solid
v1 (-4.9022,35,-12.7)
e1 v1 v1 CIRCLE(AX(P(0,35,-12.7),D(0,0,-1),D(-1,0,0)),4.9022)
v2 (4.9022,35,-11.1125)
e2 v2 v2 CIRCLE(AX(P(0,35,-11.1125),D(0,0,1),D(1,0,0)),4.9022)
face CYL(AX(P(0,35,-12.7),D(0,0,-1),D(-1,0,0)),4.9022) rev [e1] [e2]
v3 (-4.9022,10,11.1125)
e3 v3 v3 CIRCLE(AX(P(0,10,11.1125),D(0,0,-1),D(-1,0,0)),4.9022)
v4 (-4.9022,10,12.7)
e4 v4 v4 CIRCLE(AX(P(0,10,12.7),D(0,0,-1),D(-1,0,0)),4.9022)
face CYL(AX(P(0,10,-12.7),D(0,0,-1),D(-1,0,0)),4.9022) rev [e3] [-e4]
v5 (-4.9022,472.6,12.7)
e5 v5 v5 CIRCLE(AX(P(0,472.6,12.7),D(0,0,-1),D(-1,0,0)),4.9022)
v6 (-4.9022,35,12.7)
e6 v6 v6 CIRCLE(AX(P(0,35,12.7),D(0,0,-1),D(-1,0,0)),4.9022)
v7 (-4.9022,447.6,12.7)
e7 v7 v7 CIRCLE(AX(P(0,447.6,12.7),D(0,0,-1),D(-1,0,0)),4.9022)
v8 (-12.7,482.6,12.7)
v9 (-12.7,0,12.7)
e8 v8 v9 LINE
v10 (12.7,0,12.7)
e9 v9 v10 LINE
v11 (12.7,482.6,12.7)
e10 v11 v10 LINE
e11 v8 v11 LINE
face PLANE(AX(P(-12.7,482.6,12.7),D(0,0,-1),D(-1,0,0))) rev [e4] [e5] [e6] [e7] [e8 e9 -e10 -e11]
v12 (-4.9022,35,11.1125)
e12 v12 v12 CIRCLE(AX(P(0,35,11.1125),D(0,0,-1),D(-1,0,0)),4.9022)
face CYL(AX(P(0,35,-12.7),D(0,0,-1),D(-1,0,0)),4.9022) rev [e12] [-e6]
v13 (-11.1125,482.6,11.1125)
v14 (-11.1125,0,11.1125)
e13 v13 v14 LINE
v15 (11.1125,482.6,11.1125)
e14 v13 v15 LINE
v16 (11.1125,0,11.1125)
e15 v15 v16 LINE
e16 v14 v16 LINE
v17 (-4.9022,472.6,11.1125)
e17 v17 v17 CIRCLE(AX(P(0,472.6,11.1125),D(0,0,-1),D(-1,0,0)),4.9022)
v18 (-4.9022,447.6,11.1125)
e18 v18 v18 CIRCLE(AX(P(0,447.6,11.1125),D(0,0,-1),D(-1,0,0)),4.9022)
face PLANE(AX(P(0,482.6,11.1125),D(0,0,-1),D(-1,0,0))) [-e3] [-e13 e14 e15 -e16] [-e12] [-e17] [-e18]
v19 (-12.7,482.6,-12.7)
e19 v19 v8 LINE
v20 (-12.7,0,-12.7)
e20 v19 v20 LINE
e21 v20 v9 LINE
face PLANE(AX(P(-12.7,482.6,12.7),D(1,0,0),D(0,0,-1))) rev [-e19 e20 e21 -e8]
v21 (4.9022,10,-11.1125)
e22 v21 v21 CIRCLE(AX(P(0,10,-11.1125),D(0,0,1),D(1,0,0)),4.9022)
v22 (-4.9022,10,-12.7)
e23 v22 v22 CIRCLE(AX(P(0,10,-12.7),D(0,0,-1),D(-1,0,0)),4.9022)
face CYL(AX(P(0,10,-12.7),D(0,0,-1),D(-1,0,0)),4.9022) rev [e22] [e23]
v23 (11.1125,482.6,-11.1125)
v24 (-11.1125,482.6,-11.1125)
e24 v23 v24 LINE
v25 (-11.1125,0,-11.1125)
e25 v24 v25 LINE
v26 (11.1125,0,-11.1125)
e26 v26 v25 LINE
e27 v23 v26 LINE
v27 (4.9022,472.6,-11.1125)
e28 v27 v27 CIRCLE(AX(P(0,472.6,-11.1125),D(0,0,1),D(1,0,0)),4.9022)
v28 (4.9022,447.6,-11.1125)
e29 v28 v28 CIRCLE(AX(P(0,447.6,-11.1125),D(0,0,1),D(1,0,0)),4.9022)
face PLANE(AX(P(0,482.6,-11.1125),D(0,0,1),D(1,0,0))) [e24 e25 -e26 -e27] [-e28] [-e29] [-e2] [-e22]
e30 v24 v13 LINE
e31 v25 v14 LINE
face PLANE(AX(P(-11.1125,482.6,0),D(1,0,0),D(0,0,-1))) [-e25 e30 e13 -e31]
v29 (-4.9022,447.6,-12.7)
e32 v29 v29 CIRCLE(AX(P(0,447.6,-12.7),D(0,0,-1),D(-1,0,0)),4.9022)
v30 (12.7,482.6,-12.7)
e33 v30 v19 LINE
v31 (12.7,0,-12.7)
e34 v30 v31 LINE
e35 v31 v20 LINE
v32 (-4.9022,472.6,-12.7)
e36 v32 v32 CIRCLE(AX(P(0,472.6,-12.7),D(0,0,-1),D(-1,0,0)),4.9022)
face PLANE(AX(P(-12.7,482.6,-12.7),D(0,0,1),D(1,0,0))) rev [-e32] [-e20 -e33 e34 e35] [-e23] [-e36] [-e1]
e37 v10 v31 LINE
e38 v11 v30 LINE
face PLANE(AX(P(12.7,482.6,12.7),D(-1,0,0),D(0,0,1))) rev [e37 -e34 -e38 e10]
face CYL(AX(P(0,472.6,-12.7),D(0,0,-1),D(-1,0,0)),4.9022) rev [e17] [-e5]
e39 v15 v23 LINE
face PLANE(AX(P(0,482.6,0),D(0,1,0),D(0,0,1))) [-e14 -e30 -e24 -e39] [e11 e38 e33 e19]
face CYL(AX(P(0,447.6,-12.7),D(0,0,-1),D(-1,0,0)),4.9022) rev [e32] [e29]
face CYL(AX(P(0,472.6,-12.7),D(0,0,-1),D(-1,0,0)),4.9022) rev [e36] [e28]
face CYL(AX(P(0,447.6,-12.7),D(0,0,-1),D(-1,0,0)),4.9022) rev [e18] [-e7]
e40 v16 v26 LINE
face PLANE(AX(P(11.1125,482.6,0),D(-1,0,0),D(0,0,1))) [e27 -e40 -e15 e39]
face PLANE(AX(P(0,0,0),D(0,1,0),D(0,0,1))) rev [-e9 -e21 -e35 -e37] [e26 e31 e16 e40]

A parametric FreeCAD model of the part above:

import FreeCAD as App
import Part
import Sketcher
Q = App.Units.Quantity


def add_polygon(sketch, points):
    """Adds a closed chain of lines whose ends are joined by coincident constraints."""
    first, n = sketch.GeometryCount, len(points)
    for a, b in zip(points, points[1:] + points[:1]):
        sketch.addGeometry(Part.LineSegment(App.Vector(*a, 0), App.Vector(*b, 0)), False)
    for i in range(n):
        sketch.addConstraint(Sketcher.Constraint("Coincident", first + i, 2, first + (i + 1) % n, 1))

doc = App.newDocument("Part")
body = doc.addObject("PartDesign::Body", "Body")

# Sketch on XZ plane
sketch1 = body.newObject("Sketcher::SketchObject", "Sketch")
sketch1.AttachmentSupport = (doc.getObject("XZ_Plane"), [""])
sketch1.MapMode = "FlatFace"
add_polygon(sketch1, [(-13, -13), (-13, 13), (13, 13), (13, -13)])  # lines 0-3
add_polygon(sketch1, [(11, 11), (-11, 11), (-11, -11), (11, -11)])  # lines 4-7
sketch1.addConstraint([
    Sketcher.Constraint("Vertical", 0),
    Sketcher.Constraint("Horizontal", 1),
    Sketcher.Constraint("Vertical", 2),
    Sketcher.Constraint("Horizontal", 3),
    Sketcher.Constraint("Horizontal", 4),
    Sketcher.Constraint("Vertical", 5),
    Sketcher.Constraint("Horizontal", 6),
    Sketcher.Constraint("Vertical", 7),
    Sketcher.Constraint("Symmetric", 0, 2, 2, 2, -1, 1),
    Sketcher.Constraint("Symmetric", 4, 2, 6, 2, -1, 1),
    Sketcher.Constraint("Equal", 3, 0),
    Sketcher.Constraint("Equal", 6, 5),
    Sketcher.Constraint("DistanceX", 1, 1, 1, 2, Q("1 in")),
    Sketcher.Constraint("DistanceX", 4, 2, 4, 1, Q("0.875 in")),
])
pad1 = body.newObject("PartDesign::Pad", "Pad")
pad1.Profile = sketch1
pad1.Length = Q("19 in")
pad1.Reversed = True

# Sketch on XY plane
sketch2 = body.newObject("Sketcher::SketchObject", "Sketch001")
sketch2.AttachmentSupport = (doc.getObject("XY_Plane"), [""])
sketch2.MapMode = "FlatFace"
sketch2.AttachmentOffset = App.Placement(App.Vector(0, 0, -0.5 * 25.4), App.Rotation())
sketch2.addGeometry([
    Part.Circle(App.Vector(0, 472.6, 0), App.Vector(0, 0, 1), 4.9),
    Part.Circle(App.Vector(0, 447.6, 0), App.Vector(0, 0, 1), 4.9),
    Part.Circle(App.Vector(0, 35, 0), App.Vector(0, 0, 1), 4.9),
    Part.Circle(App.Vector(0, 10, 0), App.Vector(0, 0, 1), 4.9),
], False)
sketch2.addConstraint([
    Sketcher.Constraint("Equal", 0, 1),
    Sketcher.Constraint("Equal", 1, 2),
    Sketcher.Constraint("Equal", 2, 3),
    Sketcher.Constraint("PointOnObject", 0, 3, -2),
    Sketcher.Constraint("PointOnObject", 1, 3, -2),
    Sketcher.Constraint("PointOnObject", 2, 3, -2),
    Sketcher.Constraint("PointOnObject", 3, 3, -2),
    Sketcher.Constraint("Diameter", 0, Q("0.386 in")),
    Sketcher.Constraint("DistanceY", -1, 1, 0, 3, Q("472.6 mm")),
    Sketcher.Constraint("DistanceY", -1, 1, 1, 3, Q("447.6 mm")),
    Sketcher.Constraint("DistanceY", -1, 1, 2, 3, Q("35 mm")),
    Sketcher.Constraint("DistanceY", -1, 1, 3, 3, Q("10 mm")),
])
doc.recompute()
hole = body.newObject("PartDesign::Hole", "Hole")
hole.Profile = sketch2
hole.ThreadType = "None"
hole.Diameter = Q("0.386 in")
hole.DepthType = "ThroughAll"
hole.Reversed = True

doc.recompute()
